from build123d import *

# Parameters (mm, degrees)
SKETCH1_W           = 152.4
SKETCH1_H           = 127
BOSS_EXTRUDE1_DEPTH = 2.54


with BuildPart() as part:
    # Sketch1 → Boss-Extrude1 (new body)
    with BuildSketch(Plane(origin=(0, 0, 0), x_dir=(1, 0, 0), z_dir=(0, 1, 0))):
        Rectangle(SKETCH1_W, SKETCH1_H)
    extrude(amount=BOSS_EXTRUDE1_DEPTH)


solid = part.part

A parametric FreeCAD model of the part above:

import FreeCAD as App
import Part
import Sketcher
Q = App.Units.Quantity

doc = App.newDocument("Part")
params = doc.addObject("Spreadsheet::Sheet", "Params")
for row, (alias, value) in enumerate([
    ("sketch1_width", "6 in"),
    ("sketch1_height", "5 in"),
    ("pad1_length", "0.1 in"),
], start=1):
    params.set(f"A{row}", alias)
    params.set(f"B{row}", "=" + value)
    params.setAlias(f"B{row}", alias)

body = doc.addObject("PartDesign::Body", "Body")

# Sketch on XZ plane
sketch1 = body.newObject("Sketcher::SketchObject", "Sketch")
sketch1.AttachmentSupport = (doc.getObject("XZ_Plane"), [""])
sketch1.MapMode = "FlatFace"
sketch1.addGeometry([
    Part.LineSegment(App.Vector(-76, -64, 0), App.Vector(-76, 64, 0)),
    Part.LineSegment(App.Vector(-76, 64, 0), App.Vector(76, 64, 0)),
    Part.LineSegment(App.Vector(76, 64, 0), App.Vector(76, -64, 0)),
    Part.LineSegment(App.Vector(76, -64, 0), App.Vector(-76, -64, 0)),
], False)
sketch1.addConstraint([
    Sketcher.Constraint("Coincident", 0, 2, 1, 1),
    Sketcher.Constraint("Coincident", 1, 2, 2, 1),
    Sketcher.Constraint("Coincident", 2, 2, 3, 1),
    Sketcher.Constraint("Coincident", 3, 2, 0, 1),
    Sketcher.Constraint("Vertical", 0),
    Sketcher.Constraint("Horizontal", 1),
    Sketcher.Constraint("Vertical", 2),
    Sketcher.Constraint("Horizontal", 3),
    Sketcher.Constraint("Symmetric", 0, 2, 2, 2, -1, 1),
    Sketcher.Constraint("DistanceX", 1, 1, 1, 2, Q("6 in")),
    Sketcher.Constraint("DistanceY", 0, 1, 0, 2, Q("5 in")),
])
sketch1.setExpression("Constraints[9]", "Params.sketch1_width")
sketch1.setExpression("Constraints[10]", "Params.sketch1_height")
pad1 = body.newObject("PartDesign::Pad", "Pad")
pad1.Profile = sketch1
pad1.setExpression("Length", "Params.pad1_length")
pad1.Reversed = True

doc.recompute()
